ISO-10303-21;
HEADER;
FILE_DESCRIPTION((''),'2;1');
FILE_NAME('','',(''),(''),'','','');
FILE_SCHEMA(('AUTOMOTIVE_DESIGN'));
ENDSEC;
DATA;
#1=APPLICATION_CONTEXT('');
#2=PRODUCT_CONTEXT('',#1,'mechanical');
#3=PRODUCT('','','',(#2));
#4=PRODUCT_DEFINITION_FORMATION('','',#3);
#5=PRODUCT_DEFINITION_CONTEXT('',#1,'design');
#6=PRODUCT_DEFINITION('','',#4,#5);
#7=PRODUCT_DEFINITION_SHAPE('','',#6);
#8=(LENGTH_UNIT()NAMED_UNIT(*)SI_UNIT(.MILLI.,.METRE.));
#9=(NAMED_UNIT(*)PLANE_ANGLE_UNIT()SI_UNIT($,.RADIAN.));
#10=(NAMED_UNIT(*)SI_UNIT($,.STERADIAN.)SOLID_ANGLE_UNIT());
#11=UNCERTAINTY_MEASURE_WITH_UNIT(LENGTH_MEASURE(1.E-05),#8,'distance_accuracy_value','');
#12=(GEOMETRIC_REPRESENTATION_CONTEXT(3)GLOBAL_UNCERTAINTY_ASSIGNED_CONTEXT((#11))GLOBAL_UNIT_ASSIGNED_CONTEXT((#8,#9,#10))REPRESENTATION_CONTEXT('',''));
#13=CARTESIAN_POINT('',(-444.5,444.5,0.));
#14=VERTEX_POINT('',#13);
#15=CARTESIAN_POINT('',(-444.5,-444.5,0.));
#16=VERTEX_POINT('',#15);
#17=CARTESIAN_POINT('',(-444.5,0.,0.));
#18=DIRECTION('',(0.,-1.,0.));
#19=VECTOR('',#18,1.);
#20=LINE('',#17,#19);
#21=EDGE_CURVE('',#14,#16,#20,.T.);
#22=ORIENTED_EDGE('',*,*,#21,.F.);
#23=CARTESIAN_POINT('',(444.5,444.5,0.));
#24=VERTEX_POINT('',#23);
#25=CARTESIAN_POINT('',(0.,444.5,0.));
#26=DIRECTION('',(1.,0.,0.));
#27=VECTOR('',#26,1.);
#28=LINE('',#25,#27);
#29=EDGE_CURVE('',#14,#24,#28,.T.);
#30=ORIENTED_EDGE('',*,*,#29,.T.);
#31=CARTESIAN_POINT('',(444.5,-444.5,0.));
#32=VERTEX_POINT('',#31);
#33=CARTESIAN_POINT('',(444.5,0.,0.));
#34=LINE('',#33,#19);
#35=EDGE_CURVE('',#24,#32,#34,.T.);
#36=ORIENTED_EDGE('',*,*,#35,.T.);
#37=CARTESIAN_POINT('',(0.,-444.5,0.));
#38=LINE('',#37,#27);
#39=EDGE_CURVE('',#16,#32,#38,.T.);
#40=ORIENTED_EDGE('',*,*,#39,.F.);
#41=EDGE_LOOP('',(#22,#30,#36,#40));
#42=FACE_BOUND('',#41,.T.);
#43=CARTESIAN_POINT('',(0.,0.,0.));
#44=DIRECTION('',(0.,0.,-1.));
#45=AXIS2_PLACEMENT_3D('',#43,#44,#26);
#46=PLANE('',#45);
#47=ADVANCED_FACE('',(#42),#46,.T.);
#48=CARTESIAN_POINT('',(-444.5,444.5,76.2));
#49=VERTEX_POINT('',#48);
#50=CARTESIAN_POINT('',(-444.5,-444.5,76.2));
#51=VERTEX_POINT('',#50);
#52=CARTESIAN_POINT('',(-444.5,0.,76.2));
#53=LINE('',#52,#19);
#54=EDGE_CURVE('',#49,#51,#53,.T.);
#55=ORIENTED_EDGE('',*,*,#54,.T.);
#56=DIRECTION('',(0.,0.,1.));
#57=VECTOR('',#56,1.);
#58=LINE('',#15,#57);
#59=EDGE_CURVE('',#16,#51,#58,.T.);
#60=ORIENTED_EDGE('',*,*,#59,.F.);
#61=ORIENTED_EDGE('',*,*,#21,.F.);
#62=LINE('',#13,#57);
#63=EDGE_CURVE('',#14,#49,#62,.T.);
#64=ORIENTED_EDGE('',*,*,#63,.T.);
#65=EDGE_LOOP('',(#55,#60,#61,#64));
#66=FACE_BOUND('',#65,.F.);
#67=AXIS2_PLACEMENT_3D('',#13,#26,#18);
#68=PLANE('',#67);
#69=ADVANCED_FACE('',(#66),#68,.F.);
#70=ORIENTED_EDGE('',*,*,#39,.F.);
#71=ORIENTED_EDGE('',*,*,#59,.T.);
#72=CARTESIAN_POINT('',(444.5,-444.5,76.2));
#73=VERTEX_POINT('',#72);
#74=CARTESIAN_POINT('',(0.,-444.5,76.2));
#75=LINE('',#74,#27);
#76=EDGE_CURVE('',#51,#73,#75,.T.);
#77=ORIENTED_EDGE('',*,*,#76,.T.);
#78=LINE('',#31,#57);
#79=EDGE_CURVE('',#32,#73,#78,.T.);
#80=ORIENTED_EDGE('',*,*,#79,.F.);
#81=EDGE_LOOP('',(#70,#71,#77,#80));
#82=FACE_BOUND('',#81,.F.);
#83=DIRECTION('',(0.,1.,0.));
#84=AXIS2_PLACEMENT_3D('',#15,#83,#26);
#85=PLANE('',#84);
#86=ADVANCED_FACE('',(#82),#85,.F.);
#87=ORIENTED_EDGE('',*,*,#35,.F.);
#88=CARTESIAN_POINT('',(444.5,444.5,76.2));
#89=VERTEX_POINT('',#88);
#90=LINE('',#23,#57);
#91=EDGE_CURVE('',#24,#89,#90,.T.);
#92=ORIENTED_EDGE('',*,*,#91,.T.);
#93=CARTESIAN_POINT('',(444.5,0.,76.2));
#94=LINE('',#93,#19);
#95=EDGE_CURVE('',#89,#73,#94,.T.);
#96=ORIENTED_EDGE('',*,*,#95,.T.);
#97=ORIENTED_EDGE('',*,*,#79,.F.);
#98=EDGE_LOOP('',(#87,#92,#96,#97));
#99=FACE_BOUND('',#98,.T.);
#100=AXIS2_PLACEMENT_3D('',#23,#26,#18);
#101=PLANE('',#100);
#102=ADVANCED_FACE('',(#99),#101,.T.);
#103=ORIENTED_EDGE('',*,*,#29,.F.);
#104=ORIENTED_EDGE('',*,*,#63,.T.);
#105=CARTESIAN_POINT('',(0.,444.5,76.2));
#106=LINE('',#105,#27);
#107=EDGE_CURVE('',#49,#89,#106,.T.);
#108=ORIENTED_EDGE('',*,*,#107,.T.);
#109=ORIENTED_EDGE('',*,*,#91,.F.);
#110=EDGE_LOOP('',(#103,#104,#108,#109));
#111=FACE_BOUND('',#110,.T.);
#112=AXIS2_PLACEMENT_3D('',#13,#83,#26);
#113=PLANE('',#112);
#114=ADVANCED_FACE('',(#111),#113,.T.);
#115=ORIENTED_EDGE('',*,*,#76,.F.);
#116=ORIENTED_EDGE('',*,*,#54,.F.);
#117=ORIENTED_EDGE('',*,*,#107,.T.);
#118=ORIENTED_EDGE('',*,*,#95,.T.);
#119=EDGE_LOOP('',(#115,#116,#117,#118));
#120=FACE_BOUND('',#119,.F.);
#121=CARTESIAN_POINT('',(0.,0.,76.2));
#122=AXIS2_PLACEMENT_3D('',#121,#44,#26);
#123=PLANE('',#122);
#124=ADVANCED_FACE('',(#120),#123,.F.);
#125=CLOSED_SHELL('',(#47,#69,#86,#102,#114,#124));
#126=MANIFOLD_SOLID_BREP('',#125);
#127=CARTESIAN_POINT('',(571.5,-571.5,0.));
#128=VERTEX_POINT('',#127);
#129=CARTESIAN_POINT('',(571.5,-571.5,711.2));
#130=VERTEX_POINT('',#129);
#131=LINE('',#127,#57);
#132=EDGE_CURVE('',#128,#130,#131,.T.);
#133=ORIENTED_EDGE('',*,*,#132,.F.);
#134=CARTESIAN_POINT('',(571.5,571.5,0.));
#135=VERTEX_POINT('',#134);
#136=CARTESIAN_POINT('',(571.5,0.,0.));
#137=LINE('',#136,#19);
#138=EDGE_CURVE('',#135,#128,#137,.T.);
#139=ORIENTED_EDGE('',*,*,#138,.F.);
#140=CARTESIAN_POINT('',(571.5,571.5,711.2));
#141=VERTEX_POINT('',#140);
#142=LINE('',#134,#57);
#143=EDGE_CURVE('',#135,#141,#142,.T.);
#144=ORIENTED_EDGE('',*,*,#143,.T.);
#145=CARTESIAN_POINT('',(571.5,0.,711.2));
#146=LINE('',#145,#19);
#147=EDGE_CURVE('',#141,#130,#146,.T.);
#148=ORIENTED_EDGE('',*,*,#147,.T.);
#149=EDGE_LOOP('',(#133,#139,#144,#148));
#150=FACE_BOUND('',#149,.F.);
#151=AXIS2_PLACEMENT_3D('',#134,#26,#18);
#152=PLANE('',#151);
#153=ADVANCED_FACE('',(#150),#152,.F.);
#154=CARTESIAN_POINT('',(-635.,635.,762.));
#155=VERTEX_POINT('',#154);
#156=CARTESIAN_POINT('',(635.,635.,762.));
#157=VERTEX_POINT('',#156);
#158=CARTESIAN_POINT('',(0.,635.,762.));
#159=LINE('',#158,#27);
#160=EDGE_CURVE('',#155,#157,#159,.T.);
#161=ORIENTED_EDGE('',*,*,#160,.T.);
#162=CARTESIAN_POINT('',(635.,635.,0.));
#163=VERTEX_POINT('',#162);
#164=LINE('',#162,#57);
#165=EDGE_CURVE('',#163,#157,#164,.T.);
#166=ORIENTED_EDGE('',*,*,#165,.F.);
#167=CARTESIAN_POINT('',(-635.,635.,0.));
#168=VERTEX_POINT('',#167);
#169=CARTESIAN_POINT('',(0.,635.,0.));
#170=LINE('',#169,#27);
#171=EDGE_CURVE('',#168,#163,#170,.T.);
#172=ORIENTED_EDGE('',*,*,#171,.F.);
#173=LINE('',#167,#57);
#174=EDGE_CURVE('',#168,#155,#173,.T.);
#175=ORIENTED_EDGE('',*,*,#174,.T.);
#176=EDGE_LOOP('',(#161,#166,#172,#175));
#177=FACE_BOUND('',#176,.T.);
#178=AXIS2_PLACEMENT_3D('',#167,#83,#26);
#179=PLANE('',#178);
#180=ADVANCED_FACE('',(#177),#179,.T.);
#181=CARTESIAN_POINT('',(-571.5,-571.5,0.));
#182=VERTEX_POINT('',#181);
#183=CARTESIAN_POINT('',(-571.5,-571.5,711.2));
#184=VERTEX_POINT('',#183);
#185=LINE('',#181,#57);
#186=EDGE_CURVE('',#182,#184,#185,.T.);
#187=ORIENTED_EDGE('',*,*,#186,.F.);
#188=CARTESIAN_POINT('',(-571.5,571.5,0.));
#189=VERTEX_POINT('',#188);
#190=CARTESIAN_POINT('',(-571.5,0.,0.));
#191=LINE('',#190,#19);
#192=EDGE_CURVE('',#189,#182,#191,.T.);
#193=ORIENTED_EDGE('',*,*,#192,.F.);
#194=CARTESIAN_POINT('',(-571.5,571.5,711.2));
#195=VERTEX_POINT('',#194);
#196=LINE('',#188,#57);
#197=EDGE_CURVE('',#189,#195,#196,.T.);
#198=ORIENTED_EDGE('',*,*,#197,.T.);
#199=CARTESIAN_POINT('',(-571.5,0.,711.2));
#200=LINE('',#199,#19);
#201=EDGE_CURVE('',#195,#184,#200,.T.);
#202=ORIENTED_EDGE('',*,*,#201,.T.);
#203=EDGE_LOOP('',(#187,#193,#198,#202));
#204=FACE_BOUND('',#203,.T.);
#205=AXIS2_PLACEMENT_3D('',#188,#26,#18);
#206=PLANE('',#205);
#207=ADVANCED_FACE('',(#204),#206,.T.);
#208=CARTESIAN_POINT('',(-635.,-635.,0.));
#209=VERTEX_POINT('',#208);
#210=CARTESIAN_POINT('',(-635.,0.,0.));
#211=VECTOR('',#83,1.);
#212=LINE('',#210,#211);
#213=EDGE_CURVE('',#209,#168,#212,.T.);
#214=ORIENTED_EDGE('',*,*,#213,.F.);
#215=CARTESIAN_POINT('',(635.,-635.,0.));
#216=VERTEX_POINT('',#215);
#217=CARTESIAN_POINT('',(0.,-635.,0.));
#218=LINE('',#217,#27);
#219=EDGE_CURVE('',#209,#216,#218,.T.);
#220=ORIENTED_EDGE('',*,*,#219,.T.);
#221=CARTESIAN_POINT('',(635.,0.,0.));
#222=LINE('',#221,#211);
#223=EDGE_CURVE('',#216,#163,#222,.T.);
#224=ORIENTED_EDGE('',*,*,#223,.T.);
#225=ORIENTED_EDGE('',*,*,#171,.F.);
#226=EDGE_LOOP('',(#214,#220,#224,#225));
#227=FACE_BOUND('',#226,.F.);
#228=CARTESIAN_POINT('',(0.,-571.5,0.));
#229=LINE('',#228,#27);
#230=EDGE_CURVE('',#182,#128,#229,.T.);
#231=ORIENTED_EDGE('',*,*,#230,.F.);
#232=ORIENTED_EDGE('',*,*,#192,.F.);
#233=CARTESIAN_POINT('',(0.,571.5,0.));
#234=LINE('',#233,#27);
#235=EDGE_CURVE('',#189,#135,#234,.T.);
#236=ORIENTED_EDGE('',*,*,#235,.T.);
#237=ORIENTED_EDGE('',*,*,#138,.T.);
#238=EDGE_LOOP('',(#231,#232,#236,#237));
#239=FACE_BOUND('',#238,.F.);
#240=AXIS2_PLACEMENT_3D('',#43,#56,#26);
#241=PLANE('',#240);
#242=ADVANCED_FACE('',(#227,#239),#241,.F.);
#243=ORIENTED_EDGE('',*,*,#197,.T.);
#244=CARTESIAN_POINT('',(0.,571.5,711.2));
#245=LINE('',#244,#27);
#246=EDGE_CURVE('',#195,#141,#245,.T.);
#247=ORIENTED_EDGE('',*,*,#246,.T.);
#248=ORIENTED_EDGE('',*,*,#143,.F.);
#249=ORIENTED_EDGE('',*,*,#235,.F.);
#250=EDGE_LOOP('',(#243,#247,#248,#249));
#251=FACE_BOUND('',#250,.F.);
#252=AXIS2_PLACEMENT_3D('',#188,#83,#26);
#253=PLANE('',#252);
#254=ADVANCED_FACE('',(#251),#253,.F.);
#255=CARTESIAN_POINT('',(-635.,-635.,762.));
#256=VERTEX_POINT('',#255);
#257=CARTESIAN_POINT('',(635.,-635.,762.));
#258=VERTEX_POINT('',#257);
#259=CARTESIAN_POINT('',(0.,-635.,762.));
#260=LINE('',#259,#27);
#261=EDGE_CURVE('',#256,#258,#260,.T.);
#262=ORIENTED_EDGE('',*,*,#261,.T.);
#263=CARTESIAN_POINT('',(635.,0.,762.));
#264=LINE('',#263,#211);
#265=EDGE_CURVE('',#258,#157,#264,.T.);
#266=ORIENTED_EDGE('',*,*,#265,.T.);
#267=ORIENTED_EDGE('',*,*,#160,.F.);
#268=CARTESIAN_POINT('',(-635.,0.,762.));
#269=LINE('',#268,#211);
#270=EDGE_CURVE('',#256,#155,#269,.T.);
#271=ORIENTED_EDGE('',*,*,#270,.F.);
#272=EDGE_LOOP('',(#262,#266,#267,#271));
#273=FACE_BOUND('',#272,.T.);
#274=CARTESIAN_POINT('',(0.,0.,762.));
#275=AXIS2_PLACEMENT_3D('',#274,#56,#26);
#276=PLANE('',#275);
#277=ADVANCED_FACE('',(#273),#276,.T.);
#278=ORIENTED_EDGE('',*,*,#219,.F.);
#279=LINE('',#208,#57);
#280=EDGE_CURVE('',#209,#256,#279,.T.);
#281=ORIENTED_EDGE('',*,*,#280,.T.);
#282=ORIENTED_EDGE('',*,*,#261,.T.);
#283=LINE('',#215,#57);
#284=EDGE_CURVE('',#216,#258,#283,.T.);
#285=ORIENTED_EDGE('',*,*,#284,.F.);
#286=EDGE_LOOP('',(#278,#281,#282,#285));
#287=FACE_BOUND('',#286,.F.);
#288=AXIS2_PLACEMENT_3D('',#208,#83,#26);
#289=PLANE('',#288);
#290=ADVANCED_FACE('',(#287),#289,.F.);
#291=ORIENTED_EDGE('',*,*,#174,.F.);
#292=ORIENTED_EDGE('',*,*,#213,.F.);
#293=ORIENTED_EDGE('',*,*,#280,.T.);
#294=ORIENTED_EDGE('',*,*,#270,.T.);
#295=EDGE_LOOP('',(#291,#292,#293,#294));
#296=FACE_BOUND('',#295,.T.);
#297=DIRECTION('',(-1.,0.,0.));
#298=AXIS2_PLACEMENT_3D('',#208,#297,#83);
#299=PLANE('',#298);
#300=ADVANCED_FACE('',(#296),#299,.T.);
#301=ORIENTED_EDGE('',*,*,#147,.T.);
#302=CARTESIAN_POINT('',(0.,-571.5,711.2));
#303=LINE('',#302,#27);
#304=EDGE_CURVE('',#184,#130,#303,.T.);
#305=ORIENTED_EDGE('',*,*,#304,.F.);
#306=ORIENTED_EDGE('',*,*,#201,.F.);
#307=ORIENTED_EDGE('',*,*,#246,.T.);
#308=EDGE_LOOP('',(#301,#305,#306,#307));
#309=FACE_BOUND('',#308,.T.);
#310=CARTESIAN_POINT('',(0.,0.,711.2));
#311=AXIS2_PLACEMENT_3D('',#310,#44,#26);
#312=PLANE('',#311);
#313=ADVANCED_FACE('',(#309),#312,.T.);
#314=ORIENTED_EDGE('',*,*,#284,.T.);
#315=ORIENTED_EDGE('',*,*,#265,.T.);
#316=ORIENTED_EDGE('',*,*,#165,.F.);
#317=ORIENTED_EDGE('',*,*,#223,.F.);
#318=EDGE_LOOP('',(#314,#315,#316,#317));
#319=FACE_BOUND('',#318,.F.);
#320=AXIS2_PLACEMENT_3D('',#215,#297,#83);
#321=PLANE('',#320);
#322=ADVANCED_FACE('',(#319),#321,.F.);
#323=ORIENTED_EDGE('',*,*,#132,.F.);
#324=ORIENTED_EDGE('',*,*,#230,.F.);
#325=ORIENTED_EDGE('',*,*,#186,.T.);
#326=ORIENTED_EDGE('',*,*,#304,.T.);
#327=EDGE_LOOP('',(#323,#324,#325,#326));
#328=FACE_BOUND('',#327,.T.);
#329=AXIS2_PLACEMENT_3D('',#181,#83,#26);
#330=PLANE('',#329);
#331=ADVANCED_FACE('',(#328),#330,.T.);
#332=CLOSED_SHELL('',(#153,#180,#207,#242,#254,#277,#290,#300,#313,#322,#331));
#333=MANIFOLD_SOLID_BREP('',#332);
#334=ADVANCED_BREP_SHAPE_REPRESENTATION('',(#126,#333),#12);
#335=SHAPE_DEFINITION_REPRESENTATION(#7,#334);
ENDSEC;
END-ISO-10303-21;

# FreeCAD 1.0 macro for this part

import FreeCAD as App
import Part
import Sketcher
Q = App.Units.Quantity


def add_polygon(sketch, points):
    """Adds a closed chain of lines whose ends are joined by coincident constraints."""
    first, n = sketch.GeometryCount, len(points)
    for a, b in zip(points, points[1:] + points[:1]):
        sketch.addGeometry(Part.LineSegment(App.Vector(*a, 0), App.Vector(*b, 0)), False)
    for i in range(n):
        sketch.addConstraint(Sketcher.Constraint("Coincident", first + i, 2, first + (i + 1) % n, 1))

doc = App.newDocument("Part")
body = doc.addObject("PartDesign::Body", "Body")

# Sketch on XY plane
sketch1 = body.newObject("Sketcher::SketchObject", "Sketch")
sketch1.AttachmentSupport = (doc.getObject("XY_Plane"), [""])
sketch1.MapMode = "FlatFace"
add_polygon(sketch1, [(-635, 635), (-635, -635), (635, -635), (635, 635)])  # lines 0-3
sketch1.addConstraint([
    Sketcher.Constraint("Vertical", 0),
    Sketcher.Constraint("Horizontal", 1),
    Sketcher.Constraint("Vertical", 2),
    Sketcher.Constraint("Horizontal", 3),
    Sketcher.Constraint("Symmetric", 0, 2, 2, 2, -1, 1),
    Sketcher.Constraint("Equal", 3, 0),
    Sketcher.Constraint("DistanceX", 1, 1, 1, 2, Q("50 in")),
])
pad1 = body.newObject("PartDesign::Pad", "Pad")
pad1.Profile = sketch1
pad1.Length = Q("30 in")

# Sketch on XY plane
sketch2 = body.newObject("Sketcher::SketchObject", "Sketch001")
sketch2.AttachmentSupport = (doc.getObject("XY_Plane"), [""])
sketch2.MapMode = "FlatFace"
add_polygon(sketch2, [(-572, -572), (-572, 572), (572, 572), (572, -572)])  # lines 0-3
sketch2.addConstraint([
    Sketcher.Constraint("Vertical", 0),
    Sketcher.Constraint("Horizontal", 1),
    Sketcher.Constraint("Vertical", 2),
    Sketcher.Constraint("Horizontal", 3),
    Sketcher.Constraint("Symmetric", 0, 2, 2, 2, -1, 1),
    Sketcher.Constraint("Equal", 3, 0),
    Sketcher.Constraint("DistanceX", 1, 1, 1, 2, Q("45 in")),
])
pocket1 = body.newObject("PartDesign::Pocket", "Pocket")
pocket1.Profile = sketch2
pocket1.Length = Q("28 in")
pocket1.Reversed = True
body2 = doc.addObject("PartDesign::Body", "Body001")

# Sketch on XY plane
sketch3 = body2.newObject("Sketcher::SketchObject", "Sketch002")
sketch3.AttachmentSupport = (doc.getObject("XY_Plane001"), [""])
sketch3.MapMode = "FlatFace"
add_polygon(sketch3, [(-444, -444), (-444, 444), (444, 444), (444, -444)])  # lines 0-3
sketch3.addConstraint([
    Sketcher.Constraint("Vertical", 0),
    Sketcher.Constraint("Horizontal", 1),
    Sketcher.Constraint("Vertical", 2),
    Sketcher.Constraint("Horizontal", 3),
    Sketcher.Constraint("Symmetric", 0, 2, 2, 2, -1, 1),
    Sketcher.Constraint("Equal", 3, 0),
    Sketcher.Constraint("DistanceX", 1, 1, 1, 2, Q("35 in")),
])
pad2 = body2.newObject("PartDesign::Pad", "Pad001")
pad2.Profile = sketch3
pad2.Length = Q("3 in")

doc.recompute()
